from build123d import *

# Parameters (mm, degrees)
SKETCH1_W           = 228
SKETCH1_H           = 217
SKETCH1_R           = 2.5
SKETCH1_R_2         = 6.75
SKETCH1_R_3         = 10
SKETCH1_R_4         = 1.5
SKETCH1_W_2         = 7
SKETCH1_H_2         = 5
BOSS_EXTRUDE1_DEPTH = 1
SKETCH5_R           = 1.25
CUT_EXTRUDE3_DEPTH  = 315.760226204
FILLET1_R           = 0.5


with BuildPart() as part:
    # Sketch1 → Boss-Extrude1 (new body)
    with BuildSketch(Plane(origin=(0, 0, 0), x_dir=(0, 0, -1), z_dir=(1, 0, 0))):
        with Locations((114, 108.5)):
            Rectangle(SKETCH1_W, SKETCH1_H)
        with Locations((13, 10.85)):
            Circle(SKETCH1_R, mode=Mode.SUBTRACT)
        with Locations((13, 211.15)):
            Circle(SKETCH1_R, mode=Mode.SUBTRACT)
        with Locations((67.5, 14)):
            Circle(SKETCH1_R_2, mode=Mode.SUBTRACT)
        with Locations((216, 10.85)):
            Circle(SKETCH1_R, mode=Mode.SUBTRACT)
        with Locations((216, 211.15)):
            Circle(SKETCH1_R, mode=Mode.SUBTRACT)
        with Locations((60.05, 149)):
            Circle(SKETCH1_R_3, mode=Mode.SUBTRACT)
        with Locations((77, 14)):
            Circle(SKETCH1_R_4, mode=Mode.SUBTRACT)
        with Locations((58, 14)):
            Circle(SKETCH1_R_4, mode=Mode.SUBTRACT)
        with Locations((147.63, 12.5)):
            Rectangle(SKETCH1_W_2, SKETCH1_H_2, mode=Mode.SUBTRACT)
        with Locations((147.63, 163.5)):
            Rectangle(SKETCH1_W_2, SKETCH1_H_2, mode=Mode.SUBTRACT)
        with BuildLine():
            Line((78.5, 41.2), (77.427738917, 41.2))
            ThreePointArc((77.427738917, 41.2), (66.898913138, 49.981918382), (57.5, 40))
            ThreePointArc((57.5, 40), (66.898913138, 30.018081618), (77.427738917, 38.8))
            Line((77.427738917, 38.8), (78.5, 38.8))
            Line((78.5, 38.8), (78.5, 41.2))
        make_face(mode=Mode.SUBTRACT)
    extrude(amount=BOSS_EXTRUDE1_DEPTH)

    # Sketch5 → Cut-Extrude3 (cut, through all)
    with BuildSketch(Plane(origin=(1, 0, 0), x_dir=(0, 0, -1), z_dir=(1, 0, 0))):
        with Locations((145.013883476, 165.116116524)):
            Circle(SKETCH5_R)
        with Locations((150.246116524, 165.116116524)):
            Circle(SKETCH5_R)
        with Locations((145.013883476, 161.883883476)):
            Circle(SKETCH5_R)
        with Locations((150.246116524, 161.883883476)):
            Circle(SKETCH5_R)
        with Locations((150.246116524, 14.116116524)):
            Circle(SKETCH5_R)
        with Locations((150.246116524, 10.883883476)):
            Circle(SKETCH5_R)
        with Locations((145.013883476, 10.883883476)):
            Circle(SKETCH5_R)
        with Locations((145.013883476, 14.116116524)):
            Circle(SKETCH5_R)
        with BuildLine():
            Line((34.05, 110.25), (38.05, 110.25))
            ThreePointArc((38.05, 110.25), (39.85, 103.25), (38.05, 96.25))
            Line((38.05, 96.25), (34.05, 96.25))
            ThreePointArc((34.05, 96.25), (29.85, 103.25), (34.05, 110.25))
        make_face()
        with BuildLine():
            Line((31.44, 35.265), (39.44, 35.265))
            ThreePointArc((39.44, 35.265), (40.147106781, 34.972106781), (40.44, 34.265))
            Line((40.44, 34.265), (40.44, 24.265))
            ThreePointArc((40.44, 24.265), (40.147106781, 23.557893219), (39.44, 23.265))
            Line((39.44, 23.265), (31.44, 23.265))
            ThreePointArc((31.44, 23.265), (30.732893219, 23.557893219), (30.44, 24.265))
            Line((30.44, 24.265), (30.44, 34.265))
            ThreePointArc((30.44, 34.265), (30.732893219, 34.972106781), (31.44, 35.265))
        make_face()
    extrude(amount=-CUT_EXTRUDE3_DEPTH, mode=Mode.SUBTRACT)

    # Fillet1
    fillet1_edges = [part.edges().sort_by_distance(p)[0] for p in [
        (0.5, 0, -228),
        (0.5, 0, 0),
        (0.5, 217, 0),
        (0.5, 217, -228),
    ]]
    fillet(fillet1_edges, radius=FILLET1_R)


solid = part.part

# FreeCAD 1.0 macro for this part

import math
import FreeCAD as App
import Part
import Sketcher
from FreeCAD import Vector
Q = App.Units.Quantity


def edges_at(feature, points):
    """Names of the edges that pass closest to the given points."""
    edges = feature.Shape.Edges
    near = lambda p: min(range(len(edges)), key=lambda i: edges[i].distToShape(Part.Vertex(*p))[0])
    return sorted({f"Edge{near(p) + 1}" for p in points})


def add_polygon(sketch, points):
    """Adds a closed chain of lines whose ends are joined by coincident constraints."""
    first, n = sketch.GeometryCount, len(points)
    for a, b in zip(points, points[1:] + points[:1]):
        sketch.addGeometry(Part.LineSegment(App.Vector(*a, 0), App.Vector(*b, 0)), False)
    for i in range(n):
        sketch.addConstraint(Sketcher.Constraint("Coincident", first + i, 2, first + (i + 1) % n, 1))

doc = App.newDocument("Part")
body = doc.addObject("PartDesign::Body", "Body")

# Sketch on YZ plane
sketch1 = body.newObject("Sketcher::SketchObject", "Sketch")
sketch1.AttachmentSupport = (doc.getObject("YZ_Plane"), [""])
sketch1.MapMode = "FlatFace"
add_polygon(sketch1, [(217, 0), (0, 0), (0, -228), (217, -228)])  # lines 0-3
sketch1.addGeometry(Part.Circle(Vector(10.8, -13, 0), Vector(0, 0, 1), 2.5), False)  # 4
sketch1.addGeometry(Part.Circle(Vector(14, -58, 0), Vector(0, 0, 1), 1.5), False)  # 5
sketch1.addGeometry(Part.Circle(Vector(14, -67.5, 0), Vector(0, 0, 1), 6.8), False)  # 6
sketch1.addGeometry(Part.Circle(Vector(14, -77, 0), Vector(0, 0, 1), 1.5), False)  # 7
sketch1.addGeometry(Part.LineSegment(Vector(41.2, -77.4, 0), Vector(41.2, -78.5, 0)), False)  # 8
sketch1.addGeometry(Part.LineSegment(Vector(41.2, -78.5, 0), Vector(38.8, -78.5, 0)), False)  # 9
sketch1.addGeometry(Part.LineSegment(Vector(38.8, -78.5, 0), Vector(38.8, -77.4, 0)), False)  # 10
sketch1.addGeometry(Part.ArcOfCircle(Part.Circle(Vector(40, -67.5, 0), Vector(0, 0, 1), 10), math.radians(90), math.radians(263)), False)  # 11
sketch1.addGeometry(Part.ArcOfCircle(Part.Circle(Vector(40, -67.5, 0), Vector(0, 0, 1), 10), math.radians(-83), math.radians(90)), False)  # 12
add_polygon(sketch1, [(10, -151.1), (10, -144.1), (15, -144.1), (15, -151.1)])  # lines 13-16
sketch1.addGeometry(Part.Circle(Vector(10.8, -216, 0), Vector(0, 0, 1), 2.5), False)  # 17
sketch1.addGeometry(Part.Circle(Vector(149, -60, 0), Vector(0, 0, 1), 10), False)  # 18
sketch1.addGeometry(Part.Circle(Vector(211.2, -13, 0), Vector(0, 0, 1), 2.5), False)  # 19
add_polygon(sketch1, [(161, -151.1), (161, -144.1), (166, -144.1), (166, -151.1)])  # lines 20-23
sketch1.addGeometry(Part.Circle(Vector(211.2, -216, 0), Vector(0, 0, 1), 2.5), False)  # 24
sketch1.addConstraint([
    Sketcher.Constraint("Coincident", 8, 2, 9, 1),
    Sketcher.Constraint("Coincident", 9, 2, 10, 1),
    Sketcher.Constraint("Coincident", 10, 2, 11, 2),
    Sketcher.Constraint("Tangent", 11, 1, 12, 2),
    Sketcher.Constraint("Coincident", 12, 1, 8, 1),
    Sketcher.Constraint("Horizontal", 0),
    Sketcher.Constraint("Vertical", 1),
    Sketcher.Constraint("Horizontal", 2),
    Sketcher.Constraint("Vertical", 3),
    Sketcher.Constraint("Vertical", 8),
    Sketcher.Constraint("Horizontal", 9),
    Sketcher.Constraint("Vertical", 10),
    Sketcher.Constraint("Vertical", 13),
    Sketcher.Constraint("Horizontal", 14),
    Sketcher.Constraint("Vertical", 15),
    Sketcher.Constraint("Horizontal", 16),
    Sketcher.Constraint("Vertical", 20),
    Sketcher.Constraint("Horizontal", 21),
    Sketcher.Constraint("Vertical", 22),
    Sketcher.Constraint("Horizontal", 23),
    Sketcher.Constraint("Coincident", 0, 2, -1, 1),
    Sketcher.Constraint("Equal", 5, 7),
    Sketcher.Constraint("Equal", 11, 12),
    Sketcher.Constraint("Equal", 4, 17),
    Sketcher.Constraint("Equal", 12, 18),
    Sketcher.Constraint("Equal", 17, 19),
    Sketcher.Constraint("Equal", 19, 24),
    Sketcher.Constraint("Horizontal", 6, 3, 11, 3),
    Sketcher.Constraint("Horizontal", 4, 3, 19, 3),
    Sketcher.Constraint("Horizontal", 17, 3, 24, 3),
    Sketcher.Constraint("Horizontal", 10, 2, 12, 1),
    Sketcher.Constraint("Horizontal", 14, 2, 20, 2),
    Sketcher.Constraint("Horizontal", 16, 2, 22, 2),
    Sketcher.Constraint("Vertical", 5, 3, 6, 3),
    Sketcher.Constraint("Vertical", 6, 3, 7, 3),
    Sketcher.Constraint("Vertical", 4, 3, 17, 3),
    Sketcher.Constraint("Vertical", 19, 3, 24, 3),
    Sketcher.Constraint("Vertical", 12, 3, 11, 1),
    Sketcher.Constraint("Equal", 16, 21),
    Sketcher.Constraint("Diameter", 4, Q("5 mm")),
    Sketcher.Constraint("Diameter", 5, Q("3 mm")),
    Sketcher.Constraint("Diameter", 18, Q("20 mm")),
    Sketcher.Constraint("Diameter", 6, Q("13.5 mm")),
    Sketcher.Constraint("DistanceX", 0, 2, 0, 1, Q("217 mm")),
    Sketcher.Constraint("DistanceX", 14, 1, 14, 2, Q("5 mm")),
    Sketcher.Constraint("DistanceY", 1, 2, 1, 1, Q("228 mm")),
    Sketcher.Constraint("DistanceY", 13, 1, 13, 2, Q("7 mm")),
    Sketcher.Constraint("DistanceX", 9, 2, 9, 1, Q("2.4 mm")),
    Sketcher.Constraint("DistanceY", 4, 3, -1, 1, Q("13 mm")),
    Sketcher.Constraint("DistanceX", -1, 1, 5, 3, Q("14 mm")),
    Sketcher.Constraint("DistanceY", 5, 3, -1, 1, Q("58 mm")),
    Sketcher.Constraint("DistanceY", 7, 3, -1, 1, Q("77 mm")),
    Sketcher.Constraint("DistanceX", -1, 1, 11, 3, Q("40 mm")),
    Sketcher.Constraint("DistanceY", 17, 3, -1, 1, Q("216 mm")),
    Sketcher.Constraint("DistanceX", -1, 1, 18, 3, Q("149 mm")),
    Sketcher.Constraint("DistanceX", -1, 1, 13, 2, Q("10 mm")),
    Sketcher.Constraint("DistanceX", -1, 1, 20, 2, Q("161 mm")),
    Sketcher.Constraint("DistanceY", 8, 2, 11, 3, Q("11 mm")),
    Sketcher.Constraint("DistanceY", 6, 3, -1, 1, Q("67.5 mm")),
    Sketcher.Constraint("DistanceX", 4, 3, 19, 3, Q("200.3 mm")),
    Sketcher.Constraint("DistanceX", -1, 1, 4, 3, Q("10.85 mm")),
    Sketcher.Constraint("DistanceY", 18, 3, -1, 1, Q("60.05 mm")),
    Sketcher.Constraint("DistanceY", 13, 2, -1, 1, Q("144.13 mm")),
])
pad1 = body.newObject("PartDesign::Pad", "Pad")
pad1.Profile = sketch1
pad1.Length = 1

# Sketch on YZ plane
sketch2 = body.newObject("Sketcher::SketchObject", "Sketch001")
sketch2.AttachmentSupport = (doc.getObject("YZ_Plane"), [""])
sketch2.MapMode = "FlatFace"
sketch2.AttachmentOffset = App.Placement(Vector(0, 0, 1), App.Rotation())
sketch2.addGeometry([
    Part.Circle(Vector(165.1, -145, 0), Vector(0, 0, 1), 1.2),  # 0
    Part.Circle(Vector(165.1, -150.2, 0), Vector(0, 0, 1), 1.2),  # 1
    Part.Circle(Vector(161.9, -145, 0), Vector(0, 0, 1), 1.2),  # 2
    Part.Circle(Vector(161.9, -150.2, 0), Vector(0, 0, 1), 1.2),  # 3
    Part.Circle(Vector(14.1, -150.2, 0), Vector(0, 0, 1), 1.2),  # 4
    Part.Circle(Vector(10.9, -150.2, 0), Vector(0, 0, 1), 1.2),  # 5
    Part.Circle(Vector(10.9, -145, 0), Vector(0, 0, 1), 1.2),  # 6
    Part.Circle(Vector(14.1, -145, 0), Vector(0, 0, 1), 1.2),  # 7
    Part.LineSegment(Vector(110.2, -38, 0), Vector(110.2, -34, 0)),  # 8
    Part.ArcOfCircle(Part.Circle(Vector(103.2, -37.8, 0), Vector(0, 0, 1), 7.9), math.radians(28), math.radians(152)),  # 9
    Part.LineSegment(Vector(96.2, -34, 0), Vector(96.2, -38, 0)),  # 10
    Part.ArcOfCircle(Part.Circle(Vector(103.2, -25.3, 0), Vector(0, 0, 1), 14.5), math.radians(-119), math.radians(-61)),  # 11
    Part.LineSegment(Vector(35.3, -39.4, 0), Vector(35.3, -31.4, 0)),  # 12
    Part.ArcOfCircle(Part.Circle(Vector(34.3, -31.4, 0), Vector(0, 0, 1), 1), math.radians(0), math.radians(90)),  # 13
    Part.LineSegment(Vector(34.3, -30.4, 0), Vector(24.3, -30.4, 0)),  # 14
    Part.ArcOfCircle(Part.Circle(Vector(24.3, -31.4, 0), Vector(0, 0, 1), 1), math.radians(90), math.radians(180)),  # 15
    Part.LineSegment(Vector(23.3, -31.4, 0), Vector(23.3, -39.4, 0)),  # 16
    Part.ArcOfCircle(Part.Circle(Vector(24.3, -39.4, 0), Vector(0, 0, 1), 1), math.radians(-180), math.radians(-90)),  # 17
    Part.LineSegment(Vector(24.3, -40.4, 0), Vector(34.3, -40.4, 0)),  # 18
    Part.ArcOfCircle(Part.Circle(Vector(34.3, -39.4, 0), Vector(0, 0, 1), 1), math.radians(-90), math.radians(0)),  # 19
], False)
sketch2.addConstraint([
    Sketcher.Constraint("Coincident", 8, 2, 9, 1),
    Sketcher.Constraint("Coincident", 9, 2, 10, 1),
    Sketcher.Constraint("Coincident", 10, 2, 11, 1),
    Sketcher.Constraint("Coincident", 11, 2, 8, 1),
    Sketcher.Constraint("Tangent", 12, 2, 13, 1),
    Sketcher.Constraint("Tangent", 13, 2, 14, 1),
    Sketcher.Constraint("Tangent", 14, 2, 15, 1),
    Sketcher.Constraint("Tangent", 15, 2, 16, 1),
    Sketcher.Constraint("Tangent", 16, 2, 17, 1),
    Sketcher.Constraint("Tangent", 17, 2, 18, 1),
    Sketcher.Constraint("Tangent", 18, 2, 19, 1),
    Sketcher.Constraint("Tangent", 19, 2, 12, 1),
    Sketcher.Constraint("Vertical", 8),
    Sketcher.Constraint("Vertical", 10),
    Sketcher.Constraint("Vertical", 12),
    Sketcher.Constraint("Horizontal", 14),
    Sketcher.Constraint("Vertical", 16),
    Sketcher.Constraint("Horizontal", 18),
    Sketcher.Constraint("Equal", 0, 1),
    Sketcher.Constraint("Equal", 1, 2),
    Sketcher.Constraint("Equal", 2, 3),
    Sketcher.Constraint("Equal", 3, 4),
    Sketcher.Constraint("Equal", 4, 5),
    Sketcher.Constraint("Equal", 5, 6),
    Sketcher.Constraint("Equal", 6, 7),
    Sketcher.Constraint("Equal", 13, 15),
    Sketcher.Constraint("Equal", 15, 17),
    Sketcher.Constraint("Equal", 17, 19),
    Sketcher.Constraint("Horizontal", 0, 3, 2, 3),
    Sketcher.Constraint("Horizontal", 1, 3, 3, 3),
    Sketcher.Constraint("Horizontal", 3, 3, 4, 3),
    Sketcher.Constraint("Horizontal", 4, 3, 5, 3),
    Sketcher.Constraint("Horizontal", 2, 3, 6, 3),
    Sketcher.Constraint("Horizontal", 6, 3, 7, 3),
    Sketcher.Constraint("Horizontal", 8, 2, 9, 2),
    Sketcher.Constraint("Horizontal", 10, 2, 11, 2),
    Sketcher.Constraint("Vertical", 0, 3, 1, 3),
    Sketcher.Constraint("Vertical", 2, 3, 3, 3),
    Sketcher.Constraint("Vertical", 5, 3, 6, 3),
    Sketcher.Constraint("Vertical", 4, 3, 7, 3),
    Sketcher.Constraint("Radius", 13, Q("1 mm")),
    Sketcher.Constraint("Diameter", 0, Q("2.5 mm")),
    Sketcher.Constraint("DistanceX", 14, 2, 14, 1, Q("10 mm")),
    Sketcher.Constraint("DistanceY", 8, 1, 8, 2, Q("4 mm")),
    Sketcher.Constraint("DistanceY", 12, 1, 12, 2, Q("8 mm")),
    Sketcher.Constraint("DistanceX", 4, 3, 1, 3, Q("151 mm")),
    Sketcher.Constraint("DistanceX", 5, 3, 3, 3, Q("151 mm")),
    Sketcher.Constraint("DistanceX", 9, 3, 8, 2, Q("7 mm")),
    Sketcher.Constraint("DistanceX", -1, 1, 9, 3, Q("103.25 mm")),
    Sketcher.Constraint("DistanceY", 13, 3, -1, 1, Q("31.44 mm")),
    Sketcher.Constraint("DistanceY", 8, 2, -1, 1, Q("34.05 mm")),
    Sketcher.Constraint("Radius", 11, Q("14.511111 mm")),
    Sketcher.Constraint("DistanceX", -1, 1, 13, 3, Q("34.265 mm")),
    Sketcher.Constraint("Radius", 9, Q("7.933333 mm")),
    Sketcher.Constraint("DistanceY", 2, 3, 9, 3, Q("107.23055 mm")),
    Sketcher.Constraint("DistanceX", -1, 1, 0, 3, Q("165.116117 mm")),
    Sketcher.Constraint("DistanceY", 1, 3, -1, 1, Q("150.246117 mm")),
    Sketcher.Constraint("DistanceX", -1, 1, 2, 3, Q("161.883883 mm")),
])
pocket1 = body.newObject("PartDesign::Pocket", "Pocket")
pocket1.Profile = sketch2
pocket1.Type = "ThroughAll"
doc.recompute()

fillet = body.newObject("PartDesign::Fillet", "Fillet")
fillet.Base = (pocket1, edges_at(pocket1, [
    (0.5, 0, -228),
    (0.5, 0, 0),
    (0.5, 217, 0),
    (0.5, 217, -228),
]))
fillet.Radius = 0.5

doc.recompute()
